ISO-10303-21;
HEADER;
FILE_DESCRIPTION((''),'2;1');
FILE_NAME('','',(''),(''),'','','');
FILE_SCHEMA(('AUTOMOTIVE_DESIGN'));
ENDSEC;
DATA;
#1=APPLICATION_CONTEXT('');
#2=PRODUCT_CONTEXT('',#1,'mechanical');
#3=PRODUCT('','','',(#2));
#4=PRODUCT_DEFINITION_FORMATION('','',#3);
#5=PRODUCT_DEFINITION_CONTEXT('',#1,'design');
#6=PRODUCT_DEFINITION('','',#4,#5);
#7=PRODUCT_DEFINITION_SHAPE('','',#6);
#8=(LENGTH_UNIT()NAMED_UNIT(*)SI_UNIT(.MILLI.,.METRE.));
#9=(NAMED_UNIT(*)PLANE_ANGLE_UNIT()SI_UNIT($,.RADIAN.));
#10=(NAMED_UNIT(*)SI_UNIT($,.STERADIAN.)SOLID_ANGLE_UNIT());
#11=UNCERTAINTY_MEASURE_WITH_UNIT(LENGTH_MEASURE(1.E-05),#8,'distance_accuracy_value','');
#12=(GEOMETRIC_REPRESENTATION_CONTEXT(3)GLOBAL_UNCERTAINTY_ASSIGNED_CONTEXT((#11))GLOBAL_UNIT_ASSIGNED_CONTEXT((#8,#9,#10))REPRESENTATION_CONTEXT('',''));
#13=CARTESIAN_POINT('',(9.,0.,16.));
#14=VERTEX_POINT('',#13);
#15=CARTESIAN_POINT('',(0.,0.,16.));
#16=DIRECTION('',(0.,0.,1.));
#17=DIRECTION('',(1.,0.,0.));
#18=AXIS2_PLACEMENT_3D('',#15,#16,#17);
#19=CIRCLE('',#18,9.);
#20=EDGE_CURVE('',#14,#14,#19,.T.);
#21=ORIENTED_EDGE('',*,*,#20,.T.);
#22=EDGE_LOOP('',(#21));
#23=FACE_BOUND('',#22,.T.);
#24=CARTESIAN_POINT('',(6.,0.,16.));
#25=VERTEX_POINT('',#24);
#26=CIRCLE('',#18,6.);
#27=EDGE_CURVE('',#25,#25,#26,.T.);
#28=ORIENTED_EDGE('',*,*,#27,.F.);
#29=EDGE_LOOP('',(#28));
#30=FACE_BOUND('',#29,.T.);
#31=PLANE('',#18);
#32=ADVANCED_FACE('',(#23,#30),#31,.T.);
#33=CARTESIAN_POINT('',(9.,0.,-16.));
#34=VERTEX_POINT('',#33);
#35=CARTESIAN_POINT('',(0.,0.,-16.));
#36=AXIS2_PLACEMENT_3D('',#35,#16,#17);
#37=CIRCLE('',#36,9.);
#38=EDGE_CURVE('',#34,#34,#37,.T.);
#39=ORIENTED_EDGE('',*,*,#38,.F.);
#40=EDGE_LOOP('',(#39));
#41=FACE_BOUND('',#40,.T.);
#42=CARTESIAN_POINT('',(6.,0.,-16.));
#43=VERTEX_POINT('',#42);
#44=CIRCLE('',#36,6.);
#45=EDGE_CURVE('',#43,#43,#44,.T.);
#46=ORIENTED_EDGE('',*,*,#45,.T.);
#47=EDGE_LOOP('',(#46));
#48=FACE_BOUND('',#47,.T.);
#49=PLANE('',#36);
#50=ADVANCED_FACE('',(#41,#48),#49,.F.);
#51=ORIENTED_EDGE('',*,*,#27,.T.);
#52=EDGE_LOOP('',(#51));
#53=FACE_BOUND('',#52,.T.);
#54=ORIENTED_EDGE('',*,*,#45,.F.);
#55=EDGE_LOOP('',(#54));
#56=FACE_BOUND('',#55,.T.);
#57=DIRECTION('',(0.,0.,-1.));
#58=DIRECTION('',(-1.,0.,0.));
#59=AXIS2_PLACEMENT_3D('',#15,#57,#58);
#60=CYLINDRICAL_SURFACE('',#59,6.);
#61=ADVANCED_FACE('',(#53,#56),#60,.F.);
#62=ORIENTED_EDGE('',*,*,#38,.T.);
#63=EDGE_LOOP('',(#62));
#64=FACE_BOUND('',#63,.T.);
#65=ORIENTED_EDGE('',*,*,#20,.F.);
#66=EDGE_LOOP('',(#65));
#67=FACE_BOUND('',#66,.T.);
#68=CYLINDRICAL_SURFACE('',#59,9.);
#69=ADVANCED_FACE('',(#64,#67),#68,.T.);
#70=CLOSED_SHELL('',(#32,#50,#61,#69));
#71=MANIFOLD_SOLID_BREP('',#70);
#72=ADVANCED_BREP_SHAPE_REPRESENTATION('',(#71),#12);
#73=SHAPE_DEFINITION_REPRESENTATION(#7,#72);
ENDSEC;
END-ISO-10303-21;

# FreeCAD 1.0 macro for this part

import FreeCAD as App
import Part
import Sketcher

doc = App.newDocument("Part")
body = doc.addObject("PartDesign::Body", "Body")

# Sketch on XY plane
sketch1 = body.newObject("Sketcher::SketchObject", "Sketch")
sketch1.AttachmentSupport = (doc.getObject("XY_Plane"), [""])
sketch1.MapMode = "FlatFace"
sketch1.addGeometry([
    Part.Circle(App.Vector(0, 0, 0), App.Vector(0, 0, 1), 9),
    Part.Circle(App.Vector(0, 0, 0), App.Vector(0, 0, 1), 6),
], False)
sketch1.addConstraint([
    Sketcher.Constraint("Coincident", 0, 3, -1, 1),
    Sketcher.Constraint("Coincident", 1, 3, -1, 1),
    Sketcher.Constraint("Diameter", 0, 18.0),
    Sketcher.Constraint("Diameter", 1, 12.0),
])
pad1 = body.newObject("PartDesign::Pad", "Pad")
pad1.Profile = sketch1
pad1.Length = 32
pad1.Midplane = True

doc.recompute()
